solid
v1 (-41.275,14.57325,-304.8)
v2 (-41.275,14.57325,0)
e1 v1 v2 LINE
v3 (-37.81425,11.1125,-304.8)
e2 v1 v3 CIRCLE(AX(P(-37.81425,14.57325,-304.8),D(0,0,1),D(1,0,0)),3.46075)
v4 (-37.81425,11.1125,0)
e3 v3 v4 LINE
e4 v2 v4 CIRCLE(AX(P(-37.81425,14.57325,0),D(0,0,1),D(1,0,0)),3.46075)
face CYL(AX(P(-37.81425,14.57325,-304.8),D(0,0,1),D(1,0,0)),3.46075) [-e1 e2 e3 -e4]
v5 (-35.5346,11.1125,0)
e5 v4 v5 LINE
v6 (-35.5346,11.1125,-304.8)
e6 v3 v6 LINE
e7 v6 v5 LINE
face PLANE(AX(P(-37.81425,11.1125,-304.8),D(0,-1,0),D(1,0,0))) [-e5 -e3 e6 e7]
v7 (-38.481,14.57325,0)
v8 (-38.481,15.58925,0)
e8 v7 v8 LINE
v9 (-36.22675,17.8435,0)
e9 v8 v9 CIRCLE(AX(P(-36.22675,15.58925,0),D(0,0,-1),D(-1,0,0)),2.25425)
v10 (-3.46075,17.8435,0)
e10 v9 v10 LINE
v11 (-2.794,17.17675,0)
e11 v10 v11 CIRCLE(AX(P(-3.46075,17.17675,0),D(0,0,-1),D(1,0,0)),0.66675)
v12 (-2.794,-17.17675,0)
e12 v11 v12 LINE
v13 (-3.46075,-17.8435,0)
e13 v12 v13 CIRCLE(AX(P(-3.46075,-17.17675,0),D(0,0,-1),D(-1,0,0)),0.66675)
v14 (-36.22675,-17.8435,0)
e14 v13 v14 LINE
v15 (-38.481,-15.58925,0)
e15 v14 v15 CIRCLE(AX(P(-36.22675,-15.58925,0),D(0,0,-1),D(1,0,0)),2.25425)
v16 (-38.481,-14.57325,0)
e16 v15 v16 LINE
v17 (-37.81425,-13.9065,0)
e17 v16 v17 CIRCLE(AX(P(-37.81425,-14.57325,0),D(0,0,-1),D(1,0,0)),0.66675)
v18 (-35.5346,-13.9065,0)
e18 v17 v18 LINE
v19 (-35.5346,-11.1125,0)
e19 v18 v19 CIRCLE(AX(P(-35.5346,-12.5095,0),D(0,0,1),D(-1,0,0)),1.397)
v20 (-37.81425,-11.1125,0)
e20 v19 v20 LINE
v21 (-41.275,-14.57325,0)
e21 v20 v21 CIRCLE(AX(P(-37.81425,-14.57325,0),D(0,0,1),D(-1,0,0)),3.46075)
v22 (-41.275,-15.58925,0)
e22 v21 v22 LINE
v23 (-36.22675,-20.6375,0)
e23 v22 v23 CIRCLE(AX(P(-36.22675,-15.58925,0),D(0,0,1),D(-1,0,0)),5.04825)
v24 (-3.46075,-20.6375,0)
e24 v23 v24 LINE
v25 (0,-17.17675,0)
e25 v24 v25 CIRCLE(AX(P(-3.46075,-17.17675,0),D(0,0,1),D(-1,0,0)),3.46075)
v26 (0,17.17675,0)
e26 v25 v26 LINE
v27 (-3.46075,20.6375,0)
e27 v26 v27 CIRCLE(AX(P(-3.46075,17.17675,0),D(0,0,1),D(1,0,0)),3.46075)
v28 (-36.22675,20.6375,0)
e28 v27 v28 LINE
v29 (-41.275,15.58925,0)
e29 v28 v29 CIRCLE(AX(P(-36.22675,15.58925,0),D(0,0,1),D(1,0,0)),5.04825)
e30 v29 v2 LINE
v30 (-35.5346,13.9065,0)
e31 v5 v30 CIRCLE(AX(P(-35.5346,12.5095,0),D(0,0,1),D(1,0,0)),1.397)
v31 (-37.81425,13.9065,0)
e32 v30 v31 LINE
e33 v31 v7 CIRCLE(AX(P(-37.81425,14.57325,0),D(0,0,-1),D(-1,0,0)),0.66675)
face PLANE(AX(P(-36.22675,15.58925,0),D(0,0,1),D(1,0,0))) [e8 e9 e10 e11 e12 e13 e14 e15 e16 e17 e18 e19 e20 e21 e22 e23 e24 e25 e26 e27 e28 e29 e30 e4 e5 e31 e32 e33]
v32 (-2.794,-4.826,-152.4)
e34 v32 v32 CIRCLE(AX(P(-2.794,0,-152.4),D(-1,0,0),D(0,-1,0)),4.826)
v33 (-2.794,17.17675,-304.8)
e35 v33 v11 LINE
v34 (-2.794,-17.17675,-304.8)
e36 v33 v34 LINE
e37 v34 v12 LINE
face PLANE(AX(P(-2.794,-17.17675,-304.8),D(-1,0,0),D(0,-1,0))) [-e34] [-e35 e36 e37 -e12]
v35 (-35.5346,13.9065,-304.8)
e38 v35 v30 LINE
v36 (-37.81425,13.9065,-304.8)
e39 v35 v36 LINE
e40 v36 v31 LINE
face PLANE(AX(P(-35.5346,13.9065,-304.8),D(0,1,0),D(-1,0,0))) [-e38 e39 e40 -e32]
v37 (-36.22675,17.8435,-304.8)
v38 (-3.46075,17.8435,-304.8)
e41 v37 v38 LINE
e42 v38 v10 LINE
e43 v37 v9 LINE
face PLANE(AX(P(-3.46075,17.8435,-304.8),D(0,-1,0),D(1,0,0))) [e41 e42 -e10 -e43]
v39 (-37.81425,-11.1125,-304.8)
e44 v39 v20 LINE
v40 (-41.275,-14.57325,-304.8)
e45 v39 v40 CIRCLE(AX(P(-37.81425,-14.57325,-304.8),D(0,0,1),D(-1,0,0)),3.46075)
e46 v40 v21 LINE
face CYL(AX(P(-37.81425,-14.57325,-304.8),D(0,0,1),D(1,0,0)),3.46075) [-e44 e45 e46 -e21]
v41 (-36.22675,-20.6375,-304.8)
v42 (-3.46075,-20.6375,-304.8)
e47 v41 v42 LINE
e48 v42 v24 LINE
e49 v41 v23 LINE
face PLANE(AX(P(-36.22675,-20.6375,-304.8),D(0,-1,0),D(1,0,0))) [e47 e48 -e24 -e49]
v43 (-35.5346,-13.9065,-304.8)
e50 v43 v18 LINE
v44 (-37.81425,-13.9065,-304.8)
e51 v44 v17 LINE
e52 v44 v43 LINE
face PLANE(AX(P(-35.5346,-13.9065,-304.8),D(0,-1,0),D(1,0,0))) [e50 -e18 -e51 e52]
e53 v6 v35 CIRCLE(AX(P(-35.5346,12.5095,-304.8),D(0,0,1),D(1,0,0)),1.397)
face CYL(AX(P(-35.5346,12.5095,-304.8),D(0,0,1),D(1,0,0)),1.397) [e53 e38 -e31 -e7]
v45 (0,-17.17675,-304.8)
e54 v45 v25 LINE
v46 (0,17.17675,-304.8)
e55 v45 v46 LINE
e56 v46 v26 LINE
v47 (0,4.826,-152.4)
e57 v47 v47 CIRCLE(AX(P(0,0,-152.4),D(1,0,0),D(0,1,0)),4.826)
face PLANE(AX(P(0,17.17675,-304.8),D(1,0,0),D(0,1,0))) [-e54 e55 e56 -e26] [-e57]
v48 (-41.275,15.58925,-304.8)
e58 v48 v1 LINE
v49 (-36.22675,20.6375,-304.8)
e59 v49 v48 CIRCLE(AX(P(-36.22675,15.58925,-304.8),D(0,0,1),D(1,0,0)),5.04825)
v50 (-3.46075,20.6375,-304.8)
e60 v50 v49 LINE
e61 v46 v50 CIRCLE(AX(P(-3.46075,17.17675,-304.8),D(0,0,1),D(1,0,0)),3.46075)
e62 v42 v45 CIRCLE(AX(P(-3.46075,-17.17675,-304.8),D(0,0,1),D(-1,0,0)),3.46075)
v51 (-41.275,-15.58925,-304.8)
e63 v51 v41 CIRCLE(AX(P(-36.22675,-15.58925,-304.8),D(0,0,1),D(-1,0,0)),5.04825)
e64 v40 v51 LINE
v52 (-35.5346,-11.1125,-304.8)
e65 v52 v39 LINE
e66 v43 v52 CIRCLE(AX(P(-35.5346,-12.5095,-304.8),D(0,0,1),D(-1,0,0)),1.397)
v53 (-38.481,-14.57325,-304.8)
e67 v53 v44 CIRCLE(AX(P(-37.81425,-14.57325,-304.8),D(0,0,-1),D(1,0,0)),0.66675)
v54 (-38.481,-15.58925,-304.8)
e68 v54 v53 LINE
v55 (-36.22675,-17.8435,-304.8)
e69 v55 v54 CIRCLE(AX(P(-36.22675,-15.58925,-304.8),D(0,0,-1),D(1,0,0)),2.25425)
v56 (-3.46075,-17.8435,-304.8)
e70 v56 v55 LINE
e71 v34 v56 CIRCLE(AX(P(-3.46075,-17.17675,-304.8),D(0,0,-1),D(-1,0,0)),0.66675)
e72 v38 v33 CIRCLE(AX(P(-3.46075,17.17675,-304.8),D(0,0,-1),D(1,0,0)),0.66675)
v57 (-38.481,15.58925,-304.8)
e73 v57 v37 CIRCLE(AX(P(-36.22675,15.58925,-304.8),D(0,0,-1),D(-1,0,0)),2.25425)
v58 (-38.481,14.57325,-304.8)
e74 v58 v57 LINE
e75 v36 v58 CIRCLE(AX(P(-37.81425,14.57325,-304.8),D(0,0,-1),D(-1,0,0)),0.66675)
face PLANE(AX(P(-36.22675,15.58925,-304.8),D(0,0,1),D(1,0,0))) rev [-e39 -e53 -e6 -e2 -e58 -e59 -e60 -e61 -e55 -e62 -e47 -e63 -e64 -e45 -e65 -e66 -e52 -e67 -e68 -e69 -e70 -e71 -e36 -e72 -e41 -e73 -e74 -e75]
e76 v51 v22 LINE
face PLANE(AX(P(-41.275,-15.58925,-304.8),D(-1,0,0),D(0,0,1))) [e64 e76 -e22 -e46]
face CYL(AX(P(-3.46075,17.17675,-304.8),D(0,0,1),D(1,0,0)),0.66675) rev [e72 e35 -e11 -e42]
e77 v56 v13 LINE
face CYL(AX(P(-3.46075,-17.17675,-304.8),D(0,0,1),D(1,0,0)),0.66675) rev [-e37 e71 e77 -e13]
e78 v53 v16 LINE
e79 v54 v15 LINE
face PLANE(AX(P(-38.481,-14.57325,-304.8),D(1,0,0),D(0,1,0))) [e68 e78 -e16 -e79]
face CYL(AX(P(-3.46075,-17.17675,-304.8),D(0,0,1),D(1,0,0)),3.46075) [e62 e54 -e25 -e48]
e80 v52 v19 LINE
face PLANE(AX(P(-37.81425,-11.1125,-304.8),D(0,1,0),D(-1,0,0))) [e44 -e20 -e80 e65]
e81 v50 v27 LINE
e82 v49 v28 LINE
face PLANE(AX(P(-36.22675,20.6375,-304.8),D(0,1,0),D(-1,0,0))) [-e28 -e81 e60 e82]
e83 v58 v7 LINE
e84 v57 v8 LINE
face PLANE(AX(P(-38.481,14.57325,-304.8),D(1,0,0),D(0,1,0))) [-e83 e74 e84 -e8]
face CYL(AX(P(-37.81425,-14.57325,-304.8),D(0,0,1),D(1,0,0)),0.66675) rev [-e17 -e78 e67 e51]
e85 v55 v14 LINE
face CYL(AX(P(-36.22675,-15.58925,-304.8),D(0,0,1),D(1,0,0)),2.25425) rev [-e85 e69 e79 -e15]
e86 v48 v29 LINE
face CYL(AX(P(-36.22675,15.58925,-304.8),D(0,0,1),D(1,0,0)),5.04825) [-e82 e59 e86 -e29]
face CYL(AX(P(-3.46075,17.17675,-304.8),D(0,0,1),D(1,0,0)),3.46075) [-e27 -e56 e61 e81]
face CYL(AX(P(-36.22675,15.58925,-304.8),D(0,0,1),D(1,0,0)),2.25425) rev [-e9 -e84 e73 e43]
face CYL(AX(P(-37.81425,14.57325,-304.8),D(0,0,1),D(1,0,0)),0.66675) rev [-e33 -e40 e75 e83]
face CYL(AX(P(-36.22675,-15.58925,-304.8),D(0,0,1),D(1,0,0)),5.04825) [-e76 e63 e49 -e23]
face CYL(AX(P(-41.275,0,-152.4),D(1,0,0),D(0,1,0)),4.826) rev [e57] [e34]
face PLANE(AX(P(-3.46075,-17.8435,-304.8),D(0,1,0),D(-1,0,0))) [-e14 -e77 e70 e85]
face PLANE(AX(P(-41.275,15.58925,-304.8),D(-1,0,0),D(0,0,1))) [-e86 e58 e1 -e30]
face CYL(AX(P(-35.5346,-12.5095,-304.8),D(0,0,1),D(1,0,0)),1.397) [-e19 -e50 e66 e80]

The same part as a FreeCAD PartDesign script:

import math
import FreeCAD as App
import Part
import Sketcher

V = App.Vector
Q = App.Units.Quantity

doc = App.newDocument("Part")
body = doc.addObject("PartDesign::Body", "Body")

# Sketch on XY plane
sketch1 = body.newObject("Sketcher::SketchObject", "Sketch")
sketch1.AttachmentSupport = (doc.getObject("XY_Plane"), [""])
sketch1.MapMode = "FlatFace"
sketch1.addGeometry(Part.LineSegment(V(-3.5, 20.6, 0), V(-36.2, 20.6, 0)), False)
sketch1.addGeometry(Part.ArcOfCircle(Part.Circle(V(-36.2, 15.6, 0), V(0, 0, 1), 5), math.radians(90), math.radians(180)), False)
sketch1.addGeometry(Part.LineSegment(V(-41.3, 15.6, 0), V(-41.3, 14.6, 0)), False)
sketch1.addGeometry(Part.ArcOfCircle(Part.Circle(V(-37.8, 14.6, 0), V(0, 0, 1), 3.5), math.radians(180), math.radians(270)), False)
sketch1.addGeometry(Part.LineSegment(V(-37.8, 11.1, 0), V(-35.5, 11.1, 0)), False)
sketch1.addGeometry(Part.ArcOfCircle(Part.Circle(V(-35.5, 12.5, 0), V(0, 0, 1), 1.4), math.radians(-90), math.radians(90)), False)
sketch1.addGeometry(Part.LineSegment(V(-35.5, 13.9, 0), V(-37.8, 13.9, 0)), False)
sketch1.addGeometry(Part.ArcOfCircle(Part.Circle(V(-37.8, 14.6, 0), V(0, 0, 1), 0.7), math.radians(-180), math.radians(-90)), False)
sketch1.addGeometry(Part.LineSegment(V(-38.5, 14.6, 0), V(-38.5, 15.6, 0)), False)
sketch1.addGeometry(Part.ArcOfCircle(Part.Circle(V(-36.2, 15.6, 0), V(0, 0, 1), 2.3), math.radians(90), math.radians(180)), False)
sketch1.addGeometry(Part.LineSegment(V(-36.2, 17.8, 0), V(-3.5, 17.8, 0)), False)
sketch1.addGeometry(Part.ArcOfCircle(Part.Circle(V(-3.5, 17.2, 0), V(0, 0, 1), 0.7), math.radians(0), math.radians(90)), False)
sketch1.addGeometry(Part.LineSegment(V(-2.8, 17.2, 0), V(-2.8, -17.2, 0)), False)
sketch1.addGeometry(Part.ArcOfCircle(Part.Circle(V(-3.5, -17.2, 0), V(0, 0, 1), 0.7), math.radians(-90), math.radians(0)), False)
sketch1.addGeometry(Part.LineSegment(V(-3.5, -17.8, 0), V(-36.2, -17.8, 0)), False)
sketch1.addGeometry(Part.ArcOfCircle(Part.Circle(V(-36.2, -15.6, 0), V(0, 0, 1), 2.3), math.radians(-180), math.radians(-90)), False)
sketch1.addGeometry(Part.LineSegment(V(-38.5, -15.6, 0), V(-38.5, -14.6, 0)), False)
sketch1.addGeometry(Part.ArcOfCircle(Part.Circle(V(-37.8, -14.6, 0), V(0, 0, 1), 0.7), math.radians(90), math.radians(180)), False)
sketch1.addGeometry(Part.LineSegment(V(-37.8, -13.9, 0), V(-35.5, -13.9, 0)), False)
sketch1.addGeometry(Part.ArcOfCircle(Part.Circle(V(-35.5, -12.5, 0), V(0, 0, 1), 1.4), math.radians(-90), math.radians(90)), False)
sketch1.addGeometry(Part.LineSegment(V(-35.5, -11.1, 0), V(-37.8, -11.1, 0)), False)
sketch1.addGeometry(Part.ArcOfCircle(Part.Circle(V(-37.8, -14.6, 0), V(0, 0, 1), 3.5), math.radians(90), math.radians(180)), False)
sketch1.addGeometry(Part.LineSegment(V(-41.3, -14.6, 0), V(-41.3, -15.6, 0)), False)
sketch1.addGeometry(Part.ArcOfCircle(Part.Circle(V(-36.2, -15.6, 0), V(0, 0, 1), 5), math.radians(180), math.radians(270)), False)
sketch1.addGeometry(Part.LineSegment(V(-36.2, -20.6, 0), V(-3.5, -20.6, 0)), False)
sketch1.addGeometry(Part.ArcOfCircle(Part.Circle(V(-3.5, -17.2, 0), V(0, 0, 1), 3.5), math.radians(-90), math.radians(0)), False)
sketch1.addGeometry(Part.LineSegment(V(0, -17.2, 0), V(0, 17.2, 0)), False)
sketch1.addGeometry(Part.ArcOfCircle(Part.Circle(V(-3.5, 17.2, 0), V(0, 0, 1), 3.5), math.radians(0), math.radians(90)), False)
sketch1.addConstraint(Sketcher.Constraint("Tangent", 0, 2, 1, 1))
sketch1.addConstraint(Sketcher.Constraint("Tangent", 1, 2, 2, 1))
sketch1.addConstraint(Sketcher.Constraint("Tangent", 2, 2, 3, 1))
sketch1.addConstraint(Sketcher.Constraint("Tangent", 3, 2, 4, 1))
sketch1.addConstraint(Sketcher.Constraint("Tangent", 4, 2, 5, 1))
sketch1.addConstraint(Sketcher.Constraint("Tangent", 5, 2, 6, 1))
sketch1.addConstraint(Sketcher.Constraint("Tangent", 6, 2, 7, 2))
sketch1.addConstraint(Sketcher.Constraint("Tangent", 7, 1, 8, 1))
sketch1.addConstraint(Sketcher.Constraint("Tangent", 8, 2, 9, 2))
sketch1.addConstraint(Sketcher.Constraint("Tangent", 9, 1, 10, 1))
sketch1.addConstraint(Sketcher.Constraint("Tangent", 10, 2, 11, 2))
sketch1.addConstraint(Sketcher.Constraint("Tangent", 11, 1, 12, 1))
sketch1.addConstraint(Sketcher.Constraint("Tangent", 12, 2, 13, 2))
sketch1.addConstraint(Sketcher.Constraint("Tangent", 13, 1, 14, 1))
sketch1.addConstraint(Sketcher.Constraint("Tangent", 14, 2, 15, 2))
sketch1.addConstraint(Sketcher.Constraint("Tangent", 15, 1, 16, 1))
sketch1.addConstraint(Sketcher.Constraint("Tangent", 16, 2, 17, 2))
sketch1.addConstraint(Sketcher.Constraint("Tangent", 17, 1, 18, 1))
sketch1.addConstraint(Sketcher.Constraint("Tangent", 18, 2, 19, 1))
sketch1.addConstraint(Sketcher.Constraint("Tangent", 19, 2, 20, 1))
sketch1.addConstraint(Sketcher.Constraint("Tangent", 20, 2, 21, 1))
sketch1.addConstraint(Sketcher.Constraint("Tangent", 21, 2, 22, 1))
sketch1.addConstraint(Sketcher.Constraint("Tangent", 22, 2, 23, 1))
sketch1.addConstraint(Sketcher.Constraint("Tangent", 23, 2, 24, 1))
sketch1.addConstraint(Sketcher.Constraint("Tangent", 24, 2, 25, 1))
sketch1.addConstraint(Sketcher.Constraint("Tangent", 25, 2, 26, 1))
sketch1.addConstraint(Sketcher.Constraint("Tangent", 26, 2, 27, 1))
sketch1.addConstraint(Sketcher.Constraint("Tangent", 27, 2, 0, 1))
sketch1.addConstraint(Sketcher.Constraint("Horizontal", 0))
sketch1.addConstraint(Sketcher.Constraint("Vertical", 2))
sketch1.addConstraint(Sketcher.Constraint("Horizontal", 4))
sketch1.addConstraint(Sketcher.Constraint("Horizontal", 6))
sketch1.addConstraint(Sketcher.Constraint("Vertical", 8))
sketch1.addConstraint(Sketcher.Constraint("Horizontal", 10))
sketch1.addConstraint(Sketcher.Constraint("Vertical", 12))
sketch1.addConstraint(Sketcher.Constraint("Horizontal", 14))
sketch1.addConstraint(Sketcher.Constraint("Vertical", 16))
sketch1.addConstraint(Sketcher.Constraint("Horizontal", 18))
sketch1.addConstraint(Sketcher.Constraint("Horizontal", 20))
sketch1.addConstraint(Sketcher.Constraint("Vertical", 22))
sketch1.addConstraint(Sketcher.Constraint("Horizontal", 24))
sketch1.addConstraint(Sketcher.Constraint("Vertical", 26))
sketch1.addConstraint(Sketcher.Constraint("Coincident", 7, 3, 3, 3))
sketch1.addConstraint(Sketcher.Constraint("Coincident", 9, 3, 1, 3))
sketch1.addConstraint(Sketcher.Constraint("Coincident", 21, 3, 17, 3))
sketch1.addConstraint(Sketcher.Constraint("Coincident", 23, 3, 15, 3))
sketch1.addConstraint(Sketcher.Constraint("Coincident", 25, 3, 13, 3))
sketch1.addConstraint(Sketcher.Constraint("Coincident", 27, 3, 11, 3))
sketch1.addConstraint(Sketcher.Constraint("Equal", 7, 11))
sketch1.addConstraint(Sketcher.Constraint("Equal", 11, 13))
sketch1.addConstraint(Sketcher.Constraint("Equal", 9, 15))
sketch1.addConstraint(Sketcher.Constraint("Equal", 13, 17))
sketch1.addConstraint(Sketcher.Constraint("Symmetric", 25, 2, 26, 2, -1, 1))
sketch1.addConstraint(Sketcher.Constraint("Symmetric", 3, 3, 17, 3, -1))
sketch1.addConstraint(Sketcher.Constraint("Vertical", 5, 3, 19, 3))
sketch1.addConstraint(Sketcher.Constraint("Radius", 5, Q("0.055 in")))
sketch1.addConstraint(Sketcher.Constraint("DistanceX", 0, 2, 0, 1, Q("1.29 in")))
sketch1.addConstraint(Sketcher.Constraint("DistanceY", 2, 2, 2, 1, Q("0.04 in")))
sketch1.addConstraint(Sketcher.Constraint("DistanceY", 13, 3, 9, 3, Q("1.29 in")))
sketch1.addConstraint(Sketcher.Constraint("DistanceY", 5, 3, 0, 2, Q("0.32 in")))
sketch1.addConstraint(Sketcher.Constraint("DistanceY", 12, 2, 12, 1, Q("1.3525 in")))
sketch1.addConstraint(Sketcher.Constraint("DistanceX", 5, 3, -1, 1, Q("1.399 in")))
pad1 = body.newObject("PartDesign::Pad", "Pad")
pad1.Profile = sketch1
pad1.Length = Q("12 in")
pad1.Reversed = True

# Sketch on YZ plane
sketch2 = body.newObject("Sketcher::SketchObject", "Sketch001")
sketch2.AttachmentSupport = (doc.getObject("YZ_Plane"), [""])
sketch2.MapMode = "FlatFace"
sketch2.addGeometry(Part.Circle(V(0, -152.4, 0), V(0, 0, 1), 4.8), False)
sketch2.addConstraint(Sketcher.Constraint("PointOnObject", 0, 3, -2))
sketch2.addConstraint(Sketcher.Constraint("Diameter", 0, Q("0.38 in")))
sketch2.addConstraint(Sketcher.Constraint("DistanceY", 0, 3, -1, 1, Q("6 in")))
pocket1 = body.newObject("PartDesign::Pocket", "Pocket")
pocket1.Profile = sketch2
pocket1.Type = "ThroughAll"

doc.recompute()
